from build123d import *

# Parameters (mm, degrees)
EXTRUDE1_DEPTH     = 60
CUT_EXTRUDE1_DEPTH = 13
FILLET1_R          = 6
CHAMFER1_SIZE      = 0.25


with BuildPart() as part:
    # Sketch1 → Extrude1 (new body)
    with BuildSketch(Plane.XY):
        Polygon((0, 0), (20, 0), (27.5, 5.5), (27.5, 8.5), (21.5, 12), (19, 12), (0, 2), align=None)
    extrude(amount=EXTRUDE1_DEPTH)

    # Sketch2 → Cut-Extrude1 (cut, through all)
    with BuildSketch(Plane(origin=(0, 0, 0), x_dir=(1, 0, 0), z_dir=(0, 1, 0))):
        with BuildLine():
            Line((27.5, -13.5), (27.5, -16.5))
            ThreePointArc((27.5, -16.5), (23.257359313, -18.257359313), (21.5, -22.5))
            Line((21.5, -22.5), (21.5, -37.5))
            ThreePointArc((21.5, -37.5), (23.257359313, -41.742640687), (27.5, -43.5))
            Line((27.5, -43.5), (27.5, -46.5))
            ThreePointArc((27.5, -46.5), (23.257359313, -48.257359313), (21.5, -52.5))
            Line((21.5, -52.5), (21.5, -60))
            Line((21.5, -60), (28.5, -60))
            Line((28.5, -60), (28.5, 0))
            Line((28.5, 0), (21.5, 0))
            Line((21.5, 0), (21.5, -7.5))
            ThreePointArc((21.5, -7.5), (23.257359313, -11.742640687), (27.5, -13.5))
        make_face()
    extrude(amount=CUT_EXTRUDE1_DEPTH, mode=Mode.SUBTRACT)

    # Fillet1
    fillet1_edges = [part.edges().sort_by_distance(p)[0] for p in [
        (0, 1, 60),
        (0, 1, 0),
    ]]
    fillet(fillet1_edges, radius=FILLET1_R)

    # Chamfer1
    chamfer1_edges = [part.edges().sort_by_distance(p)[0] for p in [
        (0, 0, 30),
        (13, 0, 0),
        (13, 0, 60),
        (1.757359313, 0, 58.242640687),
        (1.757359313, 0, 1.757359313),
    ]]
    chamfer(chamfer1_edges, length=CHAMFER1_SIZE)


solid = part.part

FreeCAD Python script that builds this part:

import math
import FreeCAD as App
import Part
import Sketcher

V = App.Vector
Q = App.Units.Quantity


def edges_at(feature, points):
    """Names of the edges that pass closest to the given points."""
    edges = feature.Shape.Edges
    near = lambda p: min(range(len(edges)), key=lambda i: edges[i].distToShape(Part.Vertex(*p))[0])
    return sorted({f"Edge{near(p) + 1}" for p in points})

doc = App.newDocument("Part")
params = doc.addObject("Spreadsheet::Sheet", "Params")
for row, (alias, value) in enumerate([
    ("sketch1_width", "20 mm"),
    ("sketch1_height", "3 mm"),
    ("sketch1_height2", "2 mm"),
    ("sketch1_width2", "2.5 mm"),
    ("pad1_length", "60 mm"),
    ("sketch2_radius", "6 mm"),
    ("sketch2_width", "7 mm"),
    ("sketch2_height", "3 mm"),
    ("sketch2_height2", "15 mm"),
    ("sketch2_height3", "60 mm"),
    ("fillet_radius", "6 mm"),
    ("chamfer_size", "0.25 mm"),
], start=1):
    params.set(f"A{row}", alias)
    params.set(f"B{row}", "=" + value)
    params.setAlias(f"B{row}", alias)

body = doc.addObject("PartDesign::Body", "Body")

sketch1 = body.newObject("Sketcher::SketchObject", "Sketch")
sketch1.AttachmentSupport = (doc.getObject("XY_Plane"), [""])
sketch1.MapMode = "FlatFace"
sketch1.addGeometry(Part.LineSegment(V(0, 0, 0), V(20, 0, 0)), False)
sketch1.addGeometry(Part.LineSegment(V(20, 0, 0), V(27.5, 5.5, 0)), False)
sketch1.addGeometry(Part.LineSegment(V(27.5, 5.5, 0), V(27.5, 8.5, 0)), False)
sketch1.addGeometry(Part.LineSegment(V(27.5, 8.5, 0), V(21.5, 12, 0)), False)
sketch1.addGeometry(Part.LineSegment(V(21.5, 12, 0), V(19, 12, 0)), False)
sketch1.addGeometry(Part.LineSegment(V(19, 12, 0), V(0, 2, 0)), False)
sketch1.addGeometry(Part.LineSegment(V(0, 2, 0), V(0, 0, 0)), False)
sketch1.addConstraint(Sketcher.Constraint("Coincident", 0, 2, 1, 1))
sketch1.addConstraint(Sketcher.Constraint("Coincident", 1, 2, 2, 1))
sketch1.addConstraint(Sketcher.Constraint("Coincident", 2, 2, 3, 1))
sketch1.addConstraint(Sketcher.Constraint("Coincident", 3, 2, 4, 1))
sketch1.addConstraint(Sketcher.Constraint("Coincident", 4, 2, 5, 1))
sketch1.addConstraint(Sketcher.Constraint("Coincident", 5, 2, 6, 1))
sketch1.addConstraint(Sketcher.Constraint("Coincident", 6, 2, 0, 1))
sketch1.addConstraint(Sketcher.Constraint("Horizontal", 0))
sketch1.addConstraint(Sketcher.Constraint("Vertical", 2))
sketch1.addConstraint(Sketcher.Constraint("Horizontal", 4))
sketch1.addConstraint(Sketcher.Constraint("Vertical", 6))
sketch1.addConstraint(Sketcher.Constraint("Coincident", 6, 2, -1, 1))
sketch1.addConstraint(Sketcher.Constraint("DistanceX", 0, 1, 0, 2, Q("20 mm")))
sketch1.addConstraint(Sketcher.Constraint("DistanceY", 2, 1, 2, 2, Q("3 mm")))
sketch1.addConstraint(Sketcher.Constraint("DistanceY", 6, 2, 6, 1, Q("2 mm")))
sketch1.addConstraint(Sketcher.Constraint("DistanceX", 4, 2, 4, 1, Q("2.5 mm")))
sketch1.addConstraint(Sketcher.Constraint("DistanceY", -1, 1, 3, 2, Q("12 mm")))
sketch1.addConstraint(Sketcher.Constraint("DistanceX", -1, 1, 4, 2, Q("19 mm")))
sketch1.addConstraint(Sketcher.Constraint("DistanceX", 3, 2, 2, 2, Q("6 mm")))
sketch1.addConstraint(Sketcher.Constraint("DistanceY", -1, 1, 1, 2, Q("5.5 mm")))
sketch1.setExpression("Constraints[12]", "Params.sketch1_width")
sketch1.setExpression("Constraints[13]", "Params.sketch1_height")
sketch1.setExpression("Constraints[14]", "Params.sketch1_height2")
sketch1.setExpression("Constraints[15]", "Params.sketch1_width2")
pad1 = body.newObject("PartDesign::Pad", "Pad")
pad1.Profile = sketch1
pad1.setExpression("Length", "Params.pad1_length")

sketch2 = body.newObject("Sketcher::SketchObject", "Sketch001")
sketch2.AttachmentSupport = (doc.getObject("XZ_Plane"), [""])
sketch2.MapMode = "FlatFace"
sketch2.addGeometry(Part.LineSegment(V(27.5, 13.5, 0), V(27.5, 16.5, 0)), False)
sketch2.addGeometry(Part.ArcOfCircle(Part.Circle(V(27.5, 22.5, 0), V(0, 0, 1), 6), math.radians(180), math.radians(270)), False)
sketch2.addGeometry(Part.LineSegment(V(21.5, 22.5, 0), V(21.5, 37.5, 0)), False)
sketch2.addGeometry(Part.ArcOfCircle(Part.Circle(V(27.5, 37.5, 0), V(0, 0, 1), 6), math.radians(90), math.radians(180)), False)
sketch2.addGeometry(Part.LineSegment(V(27.5, 43.5, 0), V(27.5, 46.5, 0)), False)
sketch2.addGeometry(Part.ArcOfCircle(Part.Circle(V(27.5, 52.5, 0), V(0, 0, 1), 6), math.radians(180), math.radians(270)), False)
sketch2.addGeometry(Part.LineSegment(V(21.5, 52.5, 0), V(21.5, 60, 0)), False)
sketch2.addGeometry(Part.LineSegment(V(21.5, 60, 0), V(28.5, 60, 0)), False)
sketch2.addGeometry(Part.LineSegment(V(28.5, 60, 0), V(28.5, 0, 0)), False)
sketch2.addGeometry(Part.LineSegment(V(28.5, 0, 0), V(21.5, 0, 0)), False)
sketch2.addGeometry(Part.LineSegment(V(21.5, 0, 0), V(21.5, 7.5, 0)), False)
sketch2.addGeometry(Part.ArcOfCircle(Part.Circle(V(27.5, 7.5, 0), V(0, 0, 1), 6), math.radians(90), math.radians(180)), False)
sketch2.addConstraint(Sketcher.Constraint("Coincident", 0, 2, 1, 2))
sketch2.addConstraint(Sketcher.Constraint("Tangent", 1, 1, 2, 1))
sketch2.addConstraint(Sketcher.Constraint("Tangent", 2, 2, 3, 2))
sketch2.addConstraint(Sketcher.Constraint("Coincident", 3, 1, 4, 1))
sketch2.addConstraint(Sketcher.Constraint("Coincident", 4, 2, 5, 2))
sketch2.addConstraint(Sketcher.Constraint("Tangent", 5, 1, 6, 1))
sketch2.addConstraint(Sketcher.Constraint("Coincident", 6, 2, 7, 1))
sketch2.addConstraint(Sketcher.Constraint("Coincident", 7, 2, 8, 1))
sketch2.addConstraint(Sketcher.Constraint("Coincident", 8, 2, 9, 1))
sketch2.addConstraint(Sketcher.Constraint("Coincident", 9, 2, 10, 1))
sketch2.addConstraint(Sketcher.Constraint("Tangent", 10, 2, 11, 2))
sketch2.addConstraint(Sketcher.Constraint("Coincident", 11, 1, 0, 1))
sketch2.addConstraint(Sketcher.Constraint("Vertical", 0))
sketch2.addConstraint(Sketcher.Constraint("Vertical", 2))
sketch2.addConstraint(Sketcher.Constraint("Vertical", 4))
sketch2.addConstraint(Sketcher.Constraint("Vertical", 6))
sketch2.addConstraint(Sketcher.Constraint("Horizontal", 7))
sketch2.addConstraint(Sketcher.Constraint("Vertical", 8))
sketch2.addConstraint(Sketcher.Constraint("Horizontal", 9))
sketch2.addConstraint(Sketcher.Constraint("Vertical", 10))
sketch2.addConstraint(Sketcher.Constraint("Equal", 1, 3))
sketch2.addConstraint(Sketcher.Constraint("Equal", 3, 5))
sketch2.addConstraint(Sketcher.Constraint("Equal", 5, 11))
sketch2.addConstraint(Sketcher.Constraint("PointOnObject", 8, 2, -1))
sketch2.addConstraint(Sketcher.Constraint("Vertical", 3, 3, 5, 3))
sketch2.addConstraint(Sketcher.Constraint("Vertical", 5, 3, 11, 3))
sketch2.addConstraint(Sketcher.Constraint("Vertical", 11, 3, 0, 2))
sketch2.addConstraint(Sketcher.Constraint("Vertical", 0, 2, 3, 1))
sketch2.addConstraint(Sketcher.Constraint("Equal", 0, 4))
sketch2.addConstraint(Sketcher.Constraint("Equal", 6, 10))
sketch2.addConstraint(Sketcher.Constraint("Radius", 1, Q("6 mm")))
sketch2.addConstraint(Sketcher.Constraint("DistanceX", 7, 1, 7, 2, Q("7 mm")))
sketch2.addConstraint(Sketcher.Constraint("DistanceY", 0, 1, 0, 2, Q("3 mm")))
sketch2.addConstraint(Sketcher.Constraint("DistanceY", 2, 1, 2, 2, Q("15 mm")))
sketch2.addConstraint(Sketcher.Constraint("DistanceY", 8, 2, 8, 1, Q("60 mm")))
sketch2.addConstraint(Sketcher.Constraint("DistanceX", -1, 1, 1, 3, Q("27.5 mm")))
sketch2.setExpression("Constraints[30]", "Params.sketch2_radius")
sketch2.setExpression("Constraints[31]", "Params.sketch2_width")
sketch2.setExpression("Constraints[32]", "Params.sketch2_height")
sketch2.setExpression("Constraints[33]", "Params.sketch2_height2")
sketch2.setExpression("Constraints[34]", "Params.sketch2_height3")
pocket1 = body.newObject("PartDesign::Pocket", "Pocket")
pocket1.Profile = sketch2
pocket1.Type = "ThroughAll"
doc.recompute()

fillet = body.newObject("PartDesign::Fillet", "Fillet")
fillet.Base = (pocket1, edges_at(pocket1, [(0, 1, 60), (0, 1, 0)]))
fillet.setExpression("Radius", "Params.fillet_radius")
doc.recompute()

chamfer = body.newObject("PartDesign::Chamfer", "Chamfer")
chamfer.Base = (fillet, edges_at(fillet, [
    (0, 0, 30),
    (13, 0, 0),
    (13, 0, 60),
    (1.757, 0, 58.243),
    (1.757, 0, 1.757),
]))
chamfer.setExpression("Size", "Params.chamfer_size")

doc.recompute()
